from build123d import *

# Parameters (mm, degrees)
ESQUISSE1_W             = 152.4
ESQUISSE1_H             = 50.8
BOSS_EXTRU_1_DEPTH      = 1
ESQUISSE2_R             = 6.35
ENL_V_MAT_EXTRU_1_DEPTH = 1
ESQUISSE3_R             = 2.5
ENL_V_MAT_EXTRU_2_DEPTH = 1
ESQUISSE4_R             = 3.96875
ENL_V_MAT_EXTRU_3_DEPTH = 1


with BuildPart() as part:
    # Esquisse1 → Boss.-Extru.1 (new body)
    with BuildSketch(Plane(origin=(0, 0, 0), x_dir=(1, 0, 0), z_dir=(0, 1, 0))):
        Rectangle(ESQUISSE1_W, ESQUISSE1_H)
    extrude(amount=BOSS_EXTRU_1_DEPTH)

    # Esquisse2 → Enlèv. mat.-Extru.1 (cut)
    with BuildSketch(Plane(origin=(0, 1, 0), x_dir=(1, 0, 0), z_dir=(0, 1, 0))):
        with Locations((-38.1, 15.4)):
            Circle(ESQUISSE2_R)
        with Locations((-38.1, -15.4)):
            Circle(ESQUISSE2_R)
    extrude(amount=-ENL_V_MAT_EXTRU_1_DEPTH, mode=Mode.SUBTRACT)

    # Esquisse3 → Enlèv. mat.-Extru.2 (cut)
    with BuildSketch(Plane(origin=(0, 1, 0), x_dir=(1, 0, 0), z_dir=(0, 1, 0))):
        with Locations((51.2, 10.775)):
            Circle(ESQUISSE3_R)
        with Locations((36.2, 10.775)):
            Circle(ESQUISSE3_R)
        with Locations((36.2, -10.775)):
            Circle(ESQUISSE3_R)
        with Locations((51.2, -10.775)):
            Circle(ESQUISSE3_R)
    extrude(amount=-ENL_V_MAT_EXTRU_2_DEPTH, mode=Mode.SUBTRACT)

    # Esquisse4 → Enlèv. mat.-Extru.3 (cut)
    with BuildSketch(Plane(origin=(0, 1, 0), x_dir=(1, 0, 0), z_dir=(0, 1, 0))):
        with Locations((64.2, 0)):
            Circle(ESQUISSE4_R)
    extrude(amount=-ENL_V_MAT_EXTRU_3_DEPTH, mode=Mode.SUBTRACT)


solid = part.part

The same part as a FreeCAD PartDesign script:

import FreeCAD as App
import Part
import Sketcher
from FreeCAD import Vector
Q = App.Units.Quantity


def add_polygon(sketch, points):
    """Adds a closed chain of lines whose ends are joined by coincident constraints."""
    first, n = sketch.GeometryCount, len(points)
    for a, b in zip(points, points[1:] + points[:1]):
        sketch.addGeometry(Part.LineSegment(App.Vector(*a, 0), App.Vector(*b, 0)), False)
    for i in range(n):
        sketch.addConstraint(Sketcher.Constraint("Coincident", first + i, 2, first + (i + 1) % n, 1))

doc = App.newDocument("Part")
body = doc.addObject("PartDesign::Body", "Body")

# Sketch on XZ plane
sketch1 = doc.addObject("Sketcher::SketchObject", "Sketch")
body.addObject(sketch1)
sketch1.AttachmentSupport = (doc.XZ_Plane, [""])
sketch1.MapMode = "FlatFace"
add_polygon(sketch1, [(-76.2, -25.4), (-76.2, 25.4), (76.2, 25.4), (76.2, -25.4)])  # lines 0-3
sketch1.addConstraint([
    Sketcher.Constraint("Vertical", 0),
    Sketcher.Constraint("Horizontal", 1),
    Sketcher.Constraint("Vertical", 2),
    Sketcher.Constraint("Horizontal", 3),
    Sketcher.Constraint("Symmetric", 0, 2, 2, 2, -1, 1),
    Sketcher.Constraint("DistanceX", 1, 1, 1, 2, Q("6 in")),
    Sketcher.Constraint("DistanceY", 0, 1, 0, 2, Q("2 in")),
])
pad1 = doc.addObject("PartDesign::Pad", "Pad")
body.addObject(pad1)
pad1.Profile = sketch1
pad1.Length = 1
pad1.Reversed = True

# Sketch on XZ plane
sketch2 = doc.addObject("Sketcher::SketchObject", "Sketch001")
body.addObject(sketch2)
sketch2.AttachmentSupport = (doc.XZ_Plane, [""])
sketch2.MapMode = "FlatFace"
sketch2.AttachmentOffset = App.Placement(Vector(0, 0, -1), App.Rotation())
sketch2.addGeometry([
    Part.Circle(Vector(-38.1, -15.4, 0), Vector(0, 0, 1), 6.35),
    Part.Circle(Vector(-38.1, 15.4, 0), Vector(0, 0, 1), 6.35),
], False)
sketch2.addConstraint([
    Sketcher.Constraint("Equal", 0, 1),
    Sketcher.Constraint("Symmetric", 0, 3, 1, 3, -1),
    Sketcher.Constraint("Diameter", 0, Q("0.5 in")),
    Sketcher.Constraint("DistanceX", 0, 3, -1, 1, Q("1.5 in")),
    Sketcher.Constraint("DistanceY", 0, 3, -1, 1, 15.4),
])
pocket1 = doc.addObject("PartDesign::Pocket", "Pocket")
body.addObject(pocket1)
pocket1.Profile = sketch2
pocket1.Length = 1
pocket1.Reversed = True

# Sketch on XZ plane
sketch3 = doc.addObject("Sketcher::SketchObject", "Sketch002")
body.addObject(sketch3)
sketch3.AttachmentSupport = (doc.XZ_Plane, [""])
sketch3.MapMode = "FlatFace"
sketch3.AttachmentOffset = App.Placement(Vector(0, 0, -1), App.Rotation())
sketch3.addGeometry([
    Part.Circle(Vector(51.2, -10.775, 0), Vector(0, 0, 1), 2.5),
    Part.Circle(Vector(36.2, -10.775, 0), Vector(0, 0, 1), 2.5),
    Part.Circle(Vector(36.2, 10.775, 0), Vector(0, 0, 1), 2.5),
    Part.Circle(Vector(51.2, 10.775, 0), Vector(0, 0, 1), 2.5),
], False)
sketch3.addConstraint([
    Sketcher.Constraint("Equal", 0, 1),
    Sketcher.Constraint("Equal", 1, 2),
    Sketcher.Constraint("Equal", 2, 3),
    Sketcher.Constraint("Symmetric", 1, 3, 2, 3, -1),
    Sketcher.Constraint("Symmetric", 0, 3, 3, 3, -1),
    Sketcher.Constraint("Horizontal", 0, 3, 1, 3),
    Sketcher.Constraint("Diameter", 0, 5.0),
    Sketcher.Constraint("DistanceX", -1, 1, 0, 3, 51.2),
    Sketcher.Constraint("DistanceY", 0, 3, -1, 1, 10.775),
    Sketcher.Constraint("DistanceX", -1, 1, 1, 3, 36.2),
])
pocket2 = doc.addObject("PartDesign::Pocket", "Pocket001")
body.addObject(pocket2)
pocket2.Profile = sketch3
pocket2.Length = 1
pocket2.Reversed = True

# Sketch on XZ plane
sketch4 = doc.addObject("Sketcher::SketchObject", "Sketch003")
body.addObject(sketch4)
sketch4.AttachmentSupport = (doc.XZ_Plane, [""])
sketch4.MapMode = "FlatFace"
sketch4.AttachmentOffset = App.Placement(Vector(0, 0, -1), App.Rotation())
sketch4.addGeometry(Part.Circle(Vector(64.2, 0, 0), Vector(0, 0, 1), 3.96875), False)
sketch4.addConstraint([
    Sketcher.Constraint("PointOnObject", 0, 3, -1),
    Sketcher.Constraint("Diameter", 0, Q("0.3125 in")),
    Sketcher.Constraint("DistanceX", -1, 1, 0, 3, 64.2),
])
pocket3 = doc.addObject("PartDesign::Pocket", "Pocket002")
body.addObject(pocket3)
pocket3.Profile = sketch4
pocket3.Length = 1
pocket3.Reversed = True

doc.recompute()
